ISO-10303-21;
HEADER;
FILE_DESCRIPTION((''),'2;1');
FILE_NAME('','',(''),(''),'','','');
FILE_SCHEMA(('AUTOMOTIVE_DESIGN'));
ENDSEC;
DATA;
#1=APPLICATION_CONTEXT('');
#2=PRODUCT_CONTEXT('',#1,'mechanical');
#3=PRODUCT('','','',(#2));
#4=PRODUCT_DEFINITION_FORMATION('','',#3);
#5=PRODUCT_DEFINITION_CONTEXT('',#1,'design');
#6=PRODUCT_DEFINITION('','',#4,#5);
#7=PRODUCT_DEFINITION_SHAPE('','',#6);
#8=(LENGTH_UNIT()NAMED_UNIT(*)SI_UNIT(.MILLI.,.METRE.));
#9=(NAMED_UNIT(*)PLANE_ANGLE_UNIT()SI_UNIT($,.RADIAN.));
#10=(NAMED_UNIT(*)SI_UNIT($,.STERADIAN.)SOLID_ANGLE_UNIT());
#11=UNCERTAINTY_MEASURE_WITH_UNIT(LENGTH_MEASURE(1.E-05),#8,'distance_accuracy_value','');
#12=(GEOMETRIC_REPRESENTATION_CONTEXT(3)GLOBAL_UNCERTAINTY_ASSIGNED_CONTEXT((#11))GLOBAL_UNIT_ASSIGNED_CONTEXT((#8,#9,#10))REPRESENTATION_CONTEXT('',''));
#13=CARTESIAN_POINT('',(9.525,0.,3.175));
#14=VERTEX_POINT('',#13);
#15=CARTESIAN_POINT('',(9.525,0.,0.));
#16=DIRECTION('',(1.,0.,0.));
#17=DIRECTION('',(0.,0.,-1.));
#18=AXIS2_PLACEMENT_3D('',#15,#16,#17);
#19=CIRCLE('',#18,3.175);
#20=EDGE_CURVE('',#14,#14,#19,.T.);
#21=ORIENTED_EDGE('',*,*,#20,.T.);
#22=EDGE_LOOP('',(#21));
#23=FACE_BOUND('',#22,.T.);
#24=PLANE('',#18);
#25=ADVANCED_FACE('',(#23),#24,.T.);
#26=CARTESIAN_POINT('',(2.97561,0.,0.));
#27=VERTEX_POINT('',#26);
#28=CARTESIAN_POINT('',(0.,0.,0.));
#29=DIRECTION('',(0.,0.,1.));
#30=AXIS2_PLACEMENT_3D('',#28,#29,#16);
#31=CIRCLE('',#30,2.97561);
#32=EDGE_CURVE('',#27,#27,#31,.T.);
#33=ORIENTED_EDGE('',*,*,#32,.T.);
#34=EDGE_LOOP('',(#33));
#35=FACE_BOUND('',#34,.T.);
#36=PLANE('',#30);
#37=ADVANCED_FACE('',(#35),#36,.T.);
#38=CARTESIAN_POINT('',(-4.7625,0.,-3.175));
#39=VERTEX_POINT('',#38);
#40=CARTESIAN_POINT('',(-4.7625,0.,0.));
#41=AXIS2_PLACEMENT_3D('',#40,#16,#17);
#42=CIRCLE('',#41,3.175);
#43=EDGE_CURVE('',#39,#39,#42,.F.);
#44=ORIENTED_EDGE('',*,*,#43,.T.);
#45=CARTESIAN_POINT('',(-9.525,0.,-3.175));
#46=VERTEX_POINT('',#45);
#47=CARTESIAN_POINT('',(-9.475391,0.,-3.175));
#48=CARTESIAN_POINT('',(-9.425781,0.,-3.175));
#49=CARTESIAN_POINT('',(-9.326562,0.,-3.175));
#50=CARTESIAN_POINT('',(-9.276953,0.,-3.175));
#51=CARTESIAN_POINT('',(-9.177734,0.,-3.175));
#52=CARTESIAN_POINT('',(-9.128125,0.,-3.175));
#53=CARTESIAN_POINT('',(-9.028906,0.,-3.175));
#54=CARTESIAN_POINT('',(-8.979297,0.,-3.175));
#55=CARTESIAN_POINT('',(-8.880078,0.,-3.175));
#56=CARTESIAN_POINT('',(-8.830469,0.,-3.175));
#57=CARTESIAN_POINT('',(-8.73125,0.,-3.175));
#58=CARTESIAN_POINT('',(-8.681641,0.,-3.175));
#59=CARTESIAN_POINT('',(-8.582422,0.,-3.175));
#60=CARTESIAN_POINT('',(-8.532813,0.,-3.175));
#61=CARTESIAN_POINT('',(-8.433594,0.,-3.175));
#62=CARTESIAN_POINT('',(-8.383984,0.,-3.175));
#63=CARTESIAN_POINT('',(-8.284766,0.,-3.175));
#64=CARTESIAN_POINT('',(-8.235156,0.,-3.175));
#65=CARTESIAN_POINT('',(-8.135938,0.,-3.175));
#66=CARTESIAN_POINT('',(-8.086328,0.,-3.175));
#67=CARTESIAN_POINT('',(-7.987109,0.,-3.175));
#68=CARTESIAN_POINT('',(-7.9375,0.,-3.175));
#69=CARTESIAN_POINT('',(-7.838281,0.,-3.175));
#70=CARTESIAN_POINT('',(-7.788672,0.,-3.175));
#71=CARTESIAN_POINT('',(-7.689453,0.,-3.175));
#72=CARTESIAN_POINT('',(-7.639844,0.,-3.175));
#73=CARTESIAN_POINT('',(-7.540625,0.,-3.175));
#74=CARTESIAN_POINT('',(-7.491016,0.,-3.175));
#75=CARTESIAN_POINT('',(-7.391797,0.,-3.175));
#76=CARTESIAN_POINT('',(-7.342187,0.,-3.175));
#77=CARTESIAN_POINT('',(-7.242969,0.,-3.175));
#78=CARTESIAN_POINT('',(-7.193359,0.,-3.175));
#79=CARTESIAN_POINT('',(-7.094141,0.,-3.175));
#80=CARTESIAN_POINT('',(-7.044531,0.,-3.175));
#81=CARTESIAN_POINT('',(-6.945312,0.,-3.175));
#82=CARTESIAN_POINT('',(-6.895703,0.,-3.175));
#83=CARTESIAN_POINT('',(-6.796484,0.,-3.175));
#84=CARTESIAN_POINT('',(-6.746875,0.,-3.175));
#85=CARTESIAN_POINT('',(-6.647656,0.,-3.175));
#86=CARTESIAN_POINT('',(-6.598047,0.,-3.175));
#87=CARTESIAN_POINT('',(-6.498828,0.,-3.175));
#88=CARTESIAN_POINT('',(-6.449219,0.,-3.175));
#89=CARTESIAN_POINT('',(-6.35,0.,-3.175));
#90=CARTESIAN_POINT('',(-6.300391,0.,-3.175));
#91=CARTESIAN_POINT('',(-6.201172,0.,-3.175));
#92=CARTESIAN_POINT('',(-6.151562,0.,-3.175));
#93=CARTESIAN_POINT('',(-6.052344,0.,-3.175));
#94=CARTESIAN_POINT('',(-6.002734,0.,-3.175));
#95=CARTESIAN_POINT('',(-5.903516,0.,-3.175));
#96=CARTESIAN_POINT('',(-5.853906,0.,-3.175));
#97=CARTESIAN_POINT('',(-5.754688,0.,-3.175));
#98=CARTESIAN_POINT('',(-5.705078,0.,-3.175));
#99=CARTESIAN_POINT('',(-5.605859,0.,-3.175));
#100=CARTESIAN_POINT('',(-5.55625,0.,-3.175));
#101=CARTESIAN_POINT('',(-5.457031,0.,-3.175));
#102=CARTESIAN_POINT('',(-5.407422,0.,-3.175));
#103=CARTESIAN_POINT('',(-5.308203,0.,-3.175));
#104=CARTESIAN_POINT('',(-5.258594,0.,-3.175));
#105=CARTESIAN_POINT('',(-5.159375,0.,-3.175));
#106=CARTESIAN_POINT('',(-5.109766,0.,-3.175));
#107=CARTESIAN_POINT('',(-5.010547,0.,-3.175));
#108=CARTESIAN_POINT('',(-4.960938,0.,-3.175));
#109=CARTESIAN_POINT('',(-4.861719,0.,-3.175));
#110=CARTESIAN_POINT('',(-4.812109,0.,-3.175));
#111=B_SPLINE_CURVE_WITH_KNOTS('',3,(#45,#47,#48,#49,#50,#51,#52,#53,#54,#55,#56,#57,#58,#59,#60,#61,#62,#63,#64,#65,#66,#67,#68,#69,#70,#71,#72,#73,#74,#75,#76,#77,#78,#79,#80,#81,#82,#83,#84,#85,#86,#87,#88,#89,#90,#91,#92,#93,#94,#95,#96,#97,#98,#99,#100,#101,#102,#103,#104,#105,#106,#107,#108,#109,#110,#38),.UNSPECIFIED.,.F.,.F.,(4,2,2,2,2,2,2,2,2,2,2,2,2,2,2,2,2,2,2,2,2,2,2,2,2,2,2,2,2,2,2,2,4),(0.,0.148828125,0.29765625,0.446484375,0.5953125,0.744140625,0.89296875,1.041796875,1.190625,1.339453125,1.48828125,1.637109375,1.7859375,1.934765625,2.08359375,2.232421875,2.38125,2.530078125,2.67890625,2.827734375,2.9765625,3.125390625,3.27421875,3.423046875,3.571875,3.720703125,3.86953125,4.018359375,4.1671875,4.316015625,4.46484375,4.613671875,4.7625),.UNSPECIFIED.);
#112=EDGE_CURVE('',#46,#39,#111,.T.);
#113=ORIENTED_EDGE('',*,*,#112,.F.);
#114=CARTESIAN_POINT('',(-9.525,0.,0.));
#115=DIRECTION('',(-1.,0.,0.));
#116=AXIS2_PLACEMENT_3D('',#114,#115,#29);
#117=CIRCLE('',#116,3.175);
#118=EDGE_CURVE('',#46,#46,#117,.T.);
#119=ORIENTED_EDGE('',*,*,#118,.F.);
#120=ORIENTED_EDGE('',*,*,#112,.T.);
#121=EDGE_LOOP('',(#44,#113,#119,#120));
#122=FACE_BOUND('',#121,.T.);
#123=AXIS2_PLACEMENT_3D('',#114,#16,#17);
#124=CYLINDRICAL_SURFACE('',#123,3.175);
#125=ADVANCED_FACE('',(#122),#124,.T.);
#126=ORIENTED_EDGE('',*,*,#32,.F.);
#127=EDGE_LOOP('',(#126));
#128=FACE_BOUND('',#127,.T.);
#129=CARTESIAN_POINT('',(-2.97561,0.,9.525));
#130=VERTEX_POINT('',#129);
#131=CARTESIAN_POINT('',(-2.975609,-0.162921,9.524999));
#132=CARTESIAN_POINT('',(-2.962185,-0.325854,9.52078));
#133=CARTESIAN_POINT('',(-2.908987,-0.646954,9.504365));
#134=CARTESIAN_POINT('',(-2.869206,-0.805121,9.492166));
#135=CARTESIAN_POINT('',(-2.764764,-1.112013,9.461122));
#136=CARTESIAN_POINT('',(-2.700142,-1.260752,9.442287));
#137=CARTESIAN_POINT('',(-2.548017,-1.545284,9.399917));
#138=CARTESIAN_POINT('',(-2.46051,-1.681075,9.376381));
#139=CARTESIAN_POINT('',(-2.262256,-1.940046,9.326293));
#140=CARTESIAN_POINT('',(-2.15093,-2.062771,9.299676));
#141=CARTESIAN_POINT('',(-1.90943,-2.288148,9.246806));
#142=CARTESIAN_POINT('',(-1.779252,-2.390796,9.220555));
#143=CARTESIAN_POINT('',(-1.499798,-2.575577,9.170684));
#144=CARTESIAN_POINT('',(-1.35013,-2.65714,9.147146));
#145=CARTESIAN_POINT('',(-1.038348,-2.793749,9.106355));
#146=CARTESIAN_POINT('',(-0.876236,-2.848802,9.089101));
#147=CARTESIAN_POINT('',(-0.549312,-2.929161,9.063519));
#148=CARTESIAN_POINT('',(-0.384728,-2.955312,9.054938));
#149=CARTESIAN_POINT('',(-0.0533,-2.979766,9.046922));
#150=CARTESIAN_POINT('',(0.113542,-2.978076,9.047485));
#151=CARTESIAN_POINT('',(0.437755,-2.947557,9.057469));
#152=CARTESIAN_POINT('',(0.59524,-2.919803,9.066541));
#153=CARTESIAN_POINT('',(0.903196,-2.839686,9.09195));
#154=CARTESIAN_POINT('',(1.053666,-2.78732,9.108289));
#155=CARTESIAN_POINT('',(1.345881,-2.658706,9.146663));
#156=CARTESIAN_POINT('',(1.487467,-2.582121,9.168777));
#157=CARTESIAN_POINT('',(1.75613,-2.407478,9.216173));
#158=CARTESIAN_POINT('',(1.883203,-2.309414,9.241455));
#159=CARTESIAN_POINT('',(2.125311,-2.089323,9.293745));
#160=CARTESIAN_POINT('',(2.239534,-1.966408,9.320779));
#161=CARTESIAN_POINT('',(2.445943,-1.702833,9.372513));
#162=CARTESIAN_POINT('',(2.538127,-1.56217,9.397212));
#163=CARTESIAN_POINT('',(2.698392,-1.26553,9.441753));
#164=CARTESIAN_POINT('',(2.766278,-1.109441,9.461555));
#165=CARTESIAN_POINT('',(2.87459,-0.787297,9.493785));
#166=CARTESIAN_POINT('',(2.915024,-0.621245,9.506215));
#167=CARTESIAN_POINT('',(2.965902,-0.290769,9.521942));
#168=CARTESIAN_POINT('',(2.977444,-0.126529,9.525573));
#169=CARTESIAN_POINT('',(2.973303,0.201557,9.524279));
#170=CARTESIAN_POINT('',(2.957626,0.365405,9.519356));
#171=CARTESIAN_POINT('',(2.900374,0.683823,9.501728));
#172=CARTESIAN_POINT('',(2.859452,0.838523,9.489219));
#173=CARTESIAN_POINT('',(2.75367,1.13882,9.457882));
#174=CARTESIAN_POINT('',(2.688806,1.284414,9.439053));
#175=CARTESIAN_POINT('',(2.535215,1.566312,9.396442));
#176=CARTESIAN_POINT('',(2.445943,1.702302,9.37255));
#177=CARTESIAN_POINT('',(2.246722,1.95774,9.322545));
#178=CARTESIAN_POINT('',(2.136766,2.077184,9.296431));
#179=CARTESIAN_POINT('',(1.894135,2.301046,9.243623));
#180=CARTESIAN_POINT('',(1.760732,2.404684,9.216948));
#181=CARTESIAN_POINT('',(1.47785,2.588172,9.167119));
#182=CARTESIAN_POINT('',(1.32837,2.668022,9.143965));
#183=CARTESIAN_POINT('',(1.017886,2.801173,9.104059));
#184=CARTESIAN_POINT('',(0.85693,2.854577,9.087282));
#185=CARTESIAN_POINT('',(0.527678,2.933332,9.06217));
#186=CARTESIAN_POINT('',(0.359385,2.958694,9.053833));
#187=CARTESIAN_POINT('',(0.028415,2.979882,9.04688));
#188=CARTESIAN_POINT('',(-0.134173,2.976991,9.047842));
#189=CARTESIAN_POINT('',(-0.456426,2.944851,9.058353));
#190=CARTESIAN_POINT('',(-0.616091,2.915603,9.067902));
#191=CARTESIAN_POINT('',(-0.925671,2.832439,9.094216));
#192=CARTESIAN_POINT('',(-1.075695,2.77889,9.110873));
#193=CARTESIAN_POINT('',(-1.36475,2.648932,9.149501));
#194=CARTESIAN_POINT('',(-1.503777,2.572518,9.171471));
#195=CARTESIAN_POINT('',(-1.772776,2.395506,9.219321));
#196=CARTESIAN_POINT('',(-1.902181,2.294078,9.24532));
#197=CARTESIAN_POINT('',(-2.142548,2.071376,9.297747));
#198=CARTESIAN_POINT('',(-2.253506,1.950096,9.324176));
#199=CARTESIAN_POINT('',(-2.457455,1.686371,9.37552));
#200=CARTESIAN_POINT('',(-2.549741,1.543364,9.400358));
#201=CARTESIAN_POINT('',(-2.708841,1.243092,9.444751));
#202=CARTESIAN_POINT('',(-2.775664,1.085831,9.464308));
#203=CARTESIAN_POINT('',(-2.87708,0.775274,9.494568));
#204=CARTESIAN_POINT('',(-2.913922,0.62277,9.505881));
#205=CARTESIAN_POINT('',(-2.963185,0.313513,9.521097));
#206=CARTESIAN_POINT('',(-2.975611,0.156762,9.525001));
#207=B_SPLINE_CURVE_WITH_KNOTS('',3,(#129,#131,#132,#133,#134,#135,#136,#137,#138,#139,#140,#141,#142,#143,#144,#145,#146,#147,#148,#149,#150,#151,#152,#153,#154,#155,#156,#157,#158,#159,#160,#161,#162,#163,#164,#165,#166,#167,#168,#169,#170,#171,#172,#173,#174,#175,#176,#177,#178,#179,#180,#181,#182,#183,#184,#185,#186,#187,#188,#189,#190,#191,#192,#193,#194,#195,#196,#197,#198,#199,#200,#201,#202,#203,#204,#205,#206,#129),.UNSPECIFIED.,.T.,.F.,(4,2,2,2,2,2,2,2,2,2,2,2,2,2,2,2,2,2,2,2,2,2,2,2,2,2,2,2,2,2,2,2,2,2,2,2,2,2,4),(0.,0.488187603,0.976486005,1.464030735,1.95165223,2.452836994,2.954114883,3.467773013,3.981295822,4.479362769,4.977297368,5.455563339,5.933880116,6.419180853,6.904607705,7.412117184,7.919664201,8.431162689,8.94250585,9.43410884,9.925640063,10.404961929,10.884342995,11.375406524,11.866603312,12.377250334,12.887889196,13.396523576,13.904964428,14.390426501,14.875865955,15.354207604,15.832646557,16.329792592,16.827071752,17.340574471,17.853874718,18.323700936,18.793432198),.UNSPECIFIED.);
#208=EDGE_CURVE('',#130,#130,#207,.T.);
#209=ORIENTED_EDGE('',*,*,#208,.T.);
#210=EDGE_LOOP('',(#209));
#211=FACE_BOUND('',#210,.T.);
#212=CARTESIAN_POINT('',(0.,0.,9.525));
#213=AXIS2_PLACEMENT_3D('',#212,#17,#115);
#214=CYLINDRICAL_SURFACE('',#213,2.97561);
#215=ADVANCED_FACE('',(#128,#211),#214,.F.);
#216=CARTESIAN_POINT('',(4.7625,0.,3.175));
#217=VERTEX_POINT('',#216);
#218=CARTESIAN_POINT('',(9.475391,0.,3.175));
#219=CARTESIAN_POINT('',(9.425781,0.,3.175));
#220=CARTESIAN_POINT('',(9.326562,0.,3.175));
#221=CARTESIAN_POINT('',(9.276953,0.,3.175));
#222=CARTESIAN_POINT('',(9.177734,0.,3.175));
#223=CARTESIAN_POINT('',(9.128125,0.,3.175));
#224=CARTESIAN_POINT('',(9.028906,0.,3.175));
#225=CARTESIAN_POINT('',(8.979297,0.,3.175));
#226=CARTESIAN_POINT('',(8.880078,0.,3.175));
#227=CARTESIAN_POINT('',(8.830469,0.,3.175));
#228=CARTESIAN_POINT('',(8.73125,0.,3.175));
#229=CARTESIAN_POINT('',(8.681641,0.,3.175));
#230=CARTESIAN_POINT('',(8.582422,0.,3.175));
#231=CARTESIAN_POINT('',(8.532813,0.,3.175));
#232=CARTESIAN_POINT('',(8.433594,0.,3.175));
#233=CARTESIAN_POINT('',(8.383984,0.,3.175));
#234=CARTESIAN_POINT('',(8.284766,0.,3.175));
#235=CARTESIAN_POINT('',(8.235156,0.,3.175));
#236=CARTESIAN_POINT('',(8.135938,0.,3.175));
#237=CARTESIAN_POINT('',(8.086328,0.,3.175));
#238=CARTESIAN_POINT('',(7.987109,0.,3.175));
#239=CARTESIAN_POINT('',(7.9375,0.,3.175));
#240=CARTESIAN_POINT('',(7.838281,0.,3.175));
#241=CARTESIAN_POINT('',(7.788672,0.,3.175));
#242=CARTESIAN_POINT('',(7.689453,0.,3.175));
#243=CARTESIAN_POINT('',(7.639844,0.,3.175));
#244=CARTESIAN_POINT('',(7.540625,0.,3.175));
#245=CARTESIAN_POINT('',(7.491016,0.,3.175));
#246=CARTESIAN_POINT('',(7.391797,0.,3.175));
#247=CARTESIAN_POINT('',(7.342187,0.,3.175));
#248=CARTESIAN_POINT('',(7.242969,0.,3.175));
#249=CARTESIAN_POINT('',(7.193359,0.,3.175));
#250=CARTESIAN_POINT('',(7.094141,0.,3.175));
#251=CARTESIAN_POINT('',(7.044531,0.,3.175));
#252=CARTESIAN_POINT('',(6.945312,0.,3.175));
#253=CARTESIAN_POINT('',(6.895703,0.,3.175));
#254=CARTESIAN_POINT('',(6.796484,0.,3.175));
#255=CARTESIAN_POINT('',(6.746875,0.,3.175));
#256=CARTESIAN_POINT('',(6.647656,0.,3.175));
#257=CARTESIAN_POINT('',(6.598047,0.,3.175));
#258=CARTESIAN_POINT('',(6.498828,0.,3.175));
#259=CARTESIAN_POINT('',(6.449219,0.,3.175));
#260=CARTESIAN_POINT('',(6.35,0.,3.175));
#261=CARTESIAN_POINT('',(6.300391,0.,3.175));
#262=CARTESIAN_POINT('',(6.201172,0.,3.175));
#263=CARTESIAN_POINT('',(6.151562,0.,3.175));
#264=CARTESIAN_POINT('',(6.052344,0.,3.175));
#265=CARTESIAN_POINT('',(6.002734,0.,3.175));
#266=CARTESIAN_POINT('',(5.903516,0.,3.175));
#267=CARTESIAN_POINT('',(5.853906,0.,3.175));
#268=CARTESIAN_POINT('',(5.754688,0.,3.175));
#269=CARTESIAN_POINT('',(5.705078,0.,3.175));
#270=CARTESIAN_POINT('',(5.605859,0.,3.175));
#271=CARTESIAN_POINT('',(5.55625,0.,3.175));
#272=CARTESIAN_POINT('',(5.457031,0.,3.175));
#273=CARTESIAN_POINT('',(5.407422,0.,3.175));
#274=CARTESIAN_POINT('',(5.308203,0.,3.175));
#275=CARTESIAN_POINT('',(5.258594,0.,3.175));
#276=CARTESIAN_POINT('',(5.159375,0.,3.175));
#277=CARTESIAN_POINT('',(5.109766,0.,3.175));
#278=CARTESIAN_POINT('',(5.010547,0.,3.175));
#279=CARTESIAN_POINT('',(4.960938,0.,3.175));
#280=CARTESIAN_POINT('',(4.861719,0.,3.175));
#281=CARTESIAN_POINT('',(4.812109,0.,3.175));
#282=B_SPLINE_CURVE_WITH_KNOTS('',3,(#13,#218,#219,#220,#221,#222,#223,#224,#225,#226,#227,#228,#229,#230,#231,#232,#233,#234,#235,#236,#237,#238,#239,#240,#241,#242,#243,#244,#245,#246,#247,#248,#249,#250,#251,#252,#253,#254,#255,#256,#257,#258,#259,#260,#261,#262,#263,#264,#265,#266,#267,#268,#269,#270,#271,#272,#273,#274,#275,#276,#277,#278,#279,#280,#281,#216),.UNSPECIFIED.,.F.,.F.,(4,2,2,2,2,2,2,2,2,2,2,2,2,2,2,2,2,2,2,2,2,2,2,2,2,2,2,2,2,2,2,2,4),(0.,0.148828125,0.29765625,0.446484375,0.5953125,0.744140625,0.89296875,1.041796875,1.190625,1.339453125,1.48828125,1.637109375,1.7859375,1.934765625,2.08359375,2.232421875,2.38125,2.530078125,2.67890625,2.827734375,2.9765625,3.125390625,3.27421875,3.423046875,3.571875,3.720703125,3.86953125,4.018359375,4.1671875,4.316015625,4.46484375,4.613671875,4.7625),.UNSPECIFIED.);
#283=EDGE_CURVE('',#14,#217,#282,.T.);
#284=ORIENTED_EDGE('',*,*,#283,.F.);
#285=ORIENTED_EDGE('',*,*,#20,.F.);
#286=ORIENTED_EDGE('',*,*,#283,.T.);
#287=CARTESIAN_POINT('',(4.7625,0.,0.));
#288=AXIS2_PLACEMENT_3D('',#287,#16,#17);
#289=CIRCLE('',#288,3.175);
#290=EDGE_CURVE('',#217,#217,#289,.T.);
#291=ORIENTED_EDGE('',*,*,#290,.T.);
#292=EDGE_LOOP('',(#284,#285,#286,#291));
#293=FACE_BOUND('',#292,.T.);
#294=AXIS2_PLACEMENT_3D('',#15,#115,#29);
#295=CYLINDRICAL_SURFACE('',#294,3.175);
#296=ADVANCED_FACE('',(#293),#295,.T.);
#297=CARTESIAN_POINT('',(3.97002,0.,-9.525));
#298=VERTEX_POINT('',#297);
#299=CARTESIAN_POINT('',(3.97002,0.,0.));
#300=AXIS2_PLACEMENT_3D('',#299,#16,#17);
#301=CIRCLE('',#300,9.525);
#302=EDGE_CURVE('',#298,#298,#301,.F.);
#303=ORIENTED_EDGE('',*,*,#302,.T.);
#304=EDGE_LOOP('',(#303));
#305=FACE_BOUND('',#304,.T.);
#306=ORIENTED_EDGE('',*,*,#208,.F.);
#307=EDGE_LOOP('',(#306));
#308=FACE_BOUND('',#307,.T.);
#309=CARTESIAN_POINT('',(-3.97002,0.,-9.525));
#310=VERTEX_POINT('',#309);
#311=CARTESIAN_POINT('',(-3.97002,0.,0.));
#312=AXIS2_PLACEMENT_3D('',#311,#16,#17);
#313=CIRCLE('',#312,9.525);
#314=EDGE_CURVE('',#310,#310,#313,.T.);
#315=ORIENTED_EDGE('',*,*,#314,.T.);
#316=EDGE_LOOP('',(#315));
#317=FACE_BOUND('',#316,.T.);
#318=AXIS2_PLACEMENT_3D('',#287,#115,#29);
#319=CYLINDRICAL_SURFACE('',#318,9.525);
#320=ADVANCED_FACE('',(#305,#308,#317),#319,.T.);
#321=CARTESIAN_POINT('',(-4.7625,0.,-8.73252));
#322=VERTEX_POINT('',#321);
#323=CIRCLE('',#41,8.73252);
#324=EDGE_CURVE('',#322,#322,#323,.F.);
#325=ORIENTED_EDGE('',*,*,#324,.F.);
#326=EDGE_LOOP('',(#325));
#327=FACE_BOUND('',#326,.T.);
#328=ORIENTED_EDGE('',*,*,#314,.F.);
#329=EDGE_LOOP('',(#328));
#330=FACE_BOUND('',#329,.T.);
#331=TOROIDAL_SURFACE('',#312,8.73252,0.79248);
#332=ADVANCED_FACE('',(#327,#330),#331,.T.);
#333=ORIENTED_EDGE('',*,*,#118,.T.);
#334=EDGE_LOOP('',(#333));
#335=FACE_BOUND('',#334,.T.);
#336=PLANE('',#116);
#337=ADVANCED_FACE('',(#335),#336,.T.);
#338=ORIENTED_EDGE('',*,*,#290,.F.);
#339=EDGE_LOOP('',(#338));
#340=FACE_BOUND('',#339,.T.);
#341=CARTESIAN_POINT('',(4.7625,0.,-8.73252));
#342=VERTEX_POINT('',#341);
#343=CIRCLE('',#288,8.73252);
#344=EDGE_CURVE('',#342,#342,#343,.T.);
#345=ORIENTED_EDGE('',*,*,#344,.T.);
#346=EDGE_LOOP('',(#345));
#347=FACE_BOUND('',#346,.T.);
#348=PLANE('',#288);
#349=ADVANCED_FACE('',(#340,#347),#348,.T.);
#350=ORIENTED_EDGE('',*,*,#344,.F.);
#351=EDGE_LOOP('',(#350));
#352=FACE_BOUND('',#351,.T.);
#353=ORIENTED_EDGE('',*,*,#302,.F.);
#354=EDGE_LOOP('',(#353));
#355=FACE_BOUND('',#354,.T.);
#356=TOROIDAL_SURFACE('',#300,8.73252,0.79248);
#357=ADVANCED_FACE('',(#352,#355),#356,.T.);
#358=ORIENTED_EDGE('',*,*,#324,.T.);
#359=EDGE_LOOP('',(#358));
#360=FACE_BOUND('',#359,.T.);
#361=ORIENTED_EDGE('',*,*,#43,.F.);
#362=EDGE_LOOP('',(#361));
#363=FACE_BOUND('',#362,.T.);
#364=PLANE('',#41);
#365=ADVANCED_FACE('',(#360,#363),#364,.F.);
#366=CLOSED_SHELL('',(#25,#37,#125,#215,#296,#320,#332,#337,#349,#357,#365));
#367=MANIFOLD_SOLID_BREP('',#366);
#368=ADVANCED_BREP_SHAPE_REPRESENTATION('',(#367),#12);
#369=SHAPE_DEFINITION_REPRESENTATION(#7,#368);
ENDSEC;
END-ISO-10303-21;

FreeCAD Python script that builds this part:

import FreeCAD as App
import Part
import Sketcher

V = App.Vector
Q = App.Units.Quantity


def edges_at(feature, points):
    """Names of the edges that pass closest to the given points."""
    edges = feature.Shape.Edges
    near = lambda p: min(range(len(edges)), key=lambda i: edges[i].distToShape(Part.Vertex(*p))[0])
    return sorted({f"Edge{near(p) + 1}" for p in points})

doc = App.newDocument("Part")
body = doc.addObject("PartDesign::Body", "Body")

# Sketch on YZ plane
sketch1 = doc.addObject("Sketcher::SketchObject", "Sketch")
body.addObject(sketch1)
sketch1.AttachmentSupport = (doc.YZ_Plane, [""])
sketch1.MapMode = "FlatFace"
sketch1.addGeometry(Part.Circle(V(0, 0, 0), V(0, 0, 1), 10), False)
sketch1.addConstraint([
    Sketcher.Constraint("Coincident", 0, 3, -1, 1),
    Sketcher.Constraint("Diameter", 0, Q("0.75 in")),
])
pad1 = doc.addObject("PartDesign::Pad", "Pad")
body.addObject(pad1)
pad1.Profile = sketch1
pad1.Length = Q("0.375 in")
pad1.Midplane = True

# Sketch on YZ plane
sketch2 = doc.addObject("Sketcher::SketchObject", "Sketch001")
body.addObject(sketch2)
sketch2.AttachmentSupport = (doc.YZ_Plane, [""])
sketch2.MapMode = "FlatFace"
sketch2.AttachmentOffset = App.Placement(V(0, 0, 0.1875 * 25.4), App.Rotation())
sketch2.addGeometry(Part.Circle(V(0, 0, 0), V(0, 0, 1), 3.2), False)
sketch2.addConstraint([
    Sketcher.Constraint("Coincident", 0, 3, -1, 1),
    Sketcher.Constraint("Diameter", 0, Q("0.25 in")),
])
pad2 = doc.addObject("PartDesign::Pad", "Pad001")
body.addObject(pad2)
pad2.Profile = sketch2
pad2.Length = Q("0.1875 in")
doc.recompute()

fillet = doc.addObject("PartDesign::Fillet", "Fillet")
body.addObject(fillet)
fillet.Base = (pad2, edges_at(pad2, [(-4.763, 0, -9.525), (4.763, 0, -9.525)]))
fillet.Radius = Q("0.0312 in")

# Sketch on YZ plane
sketch3 = doc.addObject("Sketcher::SketchObject", "Sketch002")
body.addObject(sketch3)
sketch3.AttachmentSupport = (doc.YZ_Plane, [""])
sketch3.MapMode = "FlatFace"
sketch3.AttachmentOffset = App.Placement(V(0, 0, -0.375 * 25.4), App.Rotation())
sketch3.addGeometry(Part.Circle(V(0, 0, 0), V(0, 0, 1), 3.2), False)
sketch3.addConstraint([
    Sketcher.Constraint("Coincident", 0, 3, -1, 1),
    Sketcher.Constraint("Diameter", 0, Q("0.25 in")),
])
pad3 = doc.addObject("PartDesign::Pad", "Pad002")
body.addObject(pad3)
pad3.Profile = sketch3
pad3.Length = Q("0.1875 in")

# Sketch on XY plane
sketch4 = doc.addObject("Sketcher::SketchObject", "Sketch003")
body.addObject(sketch4)
sketch4.AttachmentSupport = (doc.XY_Plane, [""])
sketch4.MapMode = "FlatFace"
sketch4.addGeometry(Part.Circle(V(0, 0, 0), V(0, 0, 1), 3), False)
sketch4.addConstraint([
    Sketcher.Constraint("Coincident", 0, 3, -1, 1),
    Sketcher.Constraint("Diameter", 0, Q("0.2343 in")),
])
pocket1 = doc.addObject("PartDesign::Pocket", "Pocket")
body.addObject(pocket1)
pocket1.Profile = sketch4
pocket1.Type = "ThroughAll"
pocket1.Reversed = True

doc.recompute()
